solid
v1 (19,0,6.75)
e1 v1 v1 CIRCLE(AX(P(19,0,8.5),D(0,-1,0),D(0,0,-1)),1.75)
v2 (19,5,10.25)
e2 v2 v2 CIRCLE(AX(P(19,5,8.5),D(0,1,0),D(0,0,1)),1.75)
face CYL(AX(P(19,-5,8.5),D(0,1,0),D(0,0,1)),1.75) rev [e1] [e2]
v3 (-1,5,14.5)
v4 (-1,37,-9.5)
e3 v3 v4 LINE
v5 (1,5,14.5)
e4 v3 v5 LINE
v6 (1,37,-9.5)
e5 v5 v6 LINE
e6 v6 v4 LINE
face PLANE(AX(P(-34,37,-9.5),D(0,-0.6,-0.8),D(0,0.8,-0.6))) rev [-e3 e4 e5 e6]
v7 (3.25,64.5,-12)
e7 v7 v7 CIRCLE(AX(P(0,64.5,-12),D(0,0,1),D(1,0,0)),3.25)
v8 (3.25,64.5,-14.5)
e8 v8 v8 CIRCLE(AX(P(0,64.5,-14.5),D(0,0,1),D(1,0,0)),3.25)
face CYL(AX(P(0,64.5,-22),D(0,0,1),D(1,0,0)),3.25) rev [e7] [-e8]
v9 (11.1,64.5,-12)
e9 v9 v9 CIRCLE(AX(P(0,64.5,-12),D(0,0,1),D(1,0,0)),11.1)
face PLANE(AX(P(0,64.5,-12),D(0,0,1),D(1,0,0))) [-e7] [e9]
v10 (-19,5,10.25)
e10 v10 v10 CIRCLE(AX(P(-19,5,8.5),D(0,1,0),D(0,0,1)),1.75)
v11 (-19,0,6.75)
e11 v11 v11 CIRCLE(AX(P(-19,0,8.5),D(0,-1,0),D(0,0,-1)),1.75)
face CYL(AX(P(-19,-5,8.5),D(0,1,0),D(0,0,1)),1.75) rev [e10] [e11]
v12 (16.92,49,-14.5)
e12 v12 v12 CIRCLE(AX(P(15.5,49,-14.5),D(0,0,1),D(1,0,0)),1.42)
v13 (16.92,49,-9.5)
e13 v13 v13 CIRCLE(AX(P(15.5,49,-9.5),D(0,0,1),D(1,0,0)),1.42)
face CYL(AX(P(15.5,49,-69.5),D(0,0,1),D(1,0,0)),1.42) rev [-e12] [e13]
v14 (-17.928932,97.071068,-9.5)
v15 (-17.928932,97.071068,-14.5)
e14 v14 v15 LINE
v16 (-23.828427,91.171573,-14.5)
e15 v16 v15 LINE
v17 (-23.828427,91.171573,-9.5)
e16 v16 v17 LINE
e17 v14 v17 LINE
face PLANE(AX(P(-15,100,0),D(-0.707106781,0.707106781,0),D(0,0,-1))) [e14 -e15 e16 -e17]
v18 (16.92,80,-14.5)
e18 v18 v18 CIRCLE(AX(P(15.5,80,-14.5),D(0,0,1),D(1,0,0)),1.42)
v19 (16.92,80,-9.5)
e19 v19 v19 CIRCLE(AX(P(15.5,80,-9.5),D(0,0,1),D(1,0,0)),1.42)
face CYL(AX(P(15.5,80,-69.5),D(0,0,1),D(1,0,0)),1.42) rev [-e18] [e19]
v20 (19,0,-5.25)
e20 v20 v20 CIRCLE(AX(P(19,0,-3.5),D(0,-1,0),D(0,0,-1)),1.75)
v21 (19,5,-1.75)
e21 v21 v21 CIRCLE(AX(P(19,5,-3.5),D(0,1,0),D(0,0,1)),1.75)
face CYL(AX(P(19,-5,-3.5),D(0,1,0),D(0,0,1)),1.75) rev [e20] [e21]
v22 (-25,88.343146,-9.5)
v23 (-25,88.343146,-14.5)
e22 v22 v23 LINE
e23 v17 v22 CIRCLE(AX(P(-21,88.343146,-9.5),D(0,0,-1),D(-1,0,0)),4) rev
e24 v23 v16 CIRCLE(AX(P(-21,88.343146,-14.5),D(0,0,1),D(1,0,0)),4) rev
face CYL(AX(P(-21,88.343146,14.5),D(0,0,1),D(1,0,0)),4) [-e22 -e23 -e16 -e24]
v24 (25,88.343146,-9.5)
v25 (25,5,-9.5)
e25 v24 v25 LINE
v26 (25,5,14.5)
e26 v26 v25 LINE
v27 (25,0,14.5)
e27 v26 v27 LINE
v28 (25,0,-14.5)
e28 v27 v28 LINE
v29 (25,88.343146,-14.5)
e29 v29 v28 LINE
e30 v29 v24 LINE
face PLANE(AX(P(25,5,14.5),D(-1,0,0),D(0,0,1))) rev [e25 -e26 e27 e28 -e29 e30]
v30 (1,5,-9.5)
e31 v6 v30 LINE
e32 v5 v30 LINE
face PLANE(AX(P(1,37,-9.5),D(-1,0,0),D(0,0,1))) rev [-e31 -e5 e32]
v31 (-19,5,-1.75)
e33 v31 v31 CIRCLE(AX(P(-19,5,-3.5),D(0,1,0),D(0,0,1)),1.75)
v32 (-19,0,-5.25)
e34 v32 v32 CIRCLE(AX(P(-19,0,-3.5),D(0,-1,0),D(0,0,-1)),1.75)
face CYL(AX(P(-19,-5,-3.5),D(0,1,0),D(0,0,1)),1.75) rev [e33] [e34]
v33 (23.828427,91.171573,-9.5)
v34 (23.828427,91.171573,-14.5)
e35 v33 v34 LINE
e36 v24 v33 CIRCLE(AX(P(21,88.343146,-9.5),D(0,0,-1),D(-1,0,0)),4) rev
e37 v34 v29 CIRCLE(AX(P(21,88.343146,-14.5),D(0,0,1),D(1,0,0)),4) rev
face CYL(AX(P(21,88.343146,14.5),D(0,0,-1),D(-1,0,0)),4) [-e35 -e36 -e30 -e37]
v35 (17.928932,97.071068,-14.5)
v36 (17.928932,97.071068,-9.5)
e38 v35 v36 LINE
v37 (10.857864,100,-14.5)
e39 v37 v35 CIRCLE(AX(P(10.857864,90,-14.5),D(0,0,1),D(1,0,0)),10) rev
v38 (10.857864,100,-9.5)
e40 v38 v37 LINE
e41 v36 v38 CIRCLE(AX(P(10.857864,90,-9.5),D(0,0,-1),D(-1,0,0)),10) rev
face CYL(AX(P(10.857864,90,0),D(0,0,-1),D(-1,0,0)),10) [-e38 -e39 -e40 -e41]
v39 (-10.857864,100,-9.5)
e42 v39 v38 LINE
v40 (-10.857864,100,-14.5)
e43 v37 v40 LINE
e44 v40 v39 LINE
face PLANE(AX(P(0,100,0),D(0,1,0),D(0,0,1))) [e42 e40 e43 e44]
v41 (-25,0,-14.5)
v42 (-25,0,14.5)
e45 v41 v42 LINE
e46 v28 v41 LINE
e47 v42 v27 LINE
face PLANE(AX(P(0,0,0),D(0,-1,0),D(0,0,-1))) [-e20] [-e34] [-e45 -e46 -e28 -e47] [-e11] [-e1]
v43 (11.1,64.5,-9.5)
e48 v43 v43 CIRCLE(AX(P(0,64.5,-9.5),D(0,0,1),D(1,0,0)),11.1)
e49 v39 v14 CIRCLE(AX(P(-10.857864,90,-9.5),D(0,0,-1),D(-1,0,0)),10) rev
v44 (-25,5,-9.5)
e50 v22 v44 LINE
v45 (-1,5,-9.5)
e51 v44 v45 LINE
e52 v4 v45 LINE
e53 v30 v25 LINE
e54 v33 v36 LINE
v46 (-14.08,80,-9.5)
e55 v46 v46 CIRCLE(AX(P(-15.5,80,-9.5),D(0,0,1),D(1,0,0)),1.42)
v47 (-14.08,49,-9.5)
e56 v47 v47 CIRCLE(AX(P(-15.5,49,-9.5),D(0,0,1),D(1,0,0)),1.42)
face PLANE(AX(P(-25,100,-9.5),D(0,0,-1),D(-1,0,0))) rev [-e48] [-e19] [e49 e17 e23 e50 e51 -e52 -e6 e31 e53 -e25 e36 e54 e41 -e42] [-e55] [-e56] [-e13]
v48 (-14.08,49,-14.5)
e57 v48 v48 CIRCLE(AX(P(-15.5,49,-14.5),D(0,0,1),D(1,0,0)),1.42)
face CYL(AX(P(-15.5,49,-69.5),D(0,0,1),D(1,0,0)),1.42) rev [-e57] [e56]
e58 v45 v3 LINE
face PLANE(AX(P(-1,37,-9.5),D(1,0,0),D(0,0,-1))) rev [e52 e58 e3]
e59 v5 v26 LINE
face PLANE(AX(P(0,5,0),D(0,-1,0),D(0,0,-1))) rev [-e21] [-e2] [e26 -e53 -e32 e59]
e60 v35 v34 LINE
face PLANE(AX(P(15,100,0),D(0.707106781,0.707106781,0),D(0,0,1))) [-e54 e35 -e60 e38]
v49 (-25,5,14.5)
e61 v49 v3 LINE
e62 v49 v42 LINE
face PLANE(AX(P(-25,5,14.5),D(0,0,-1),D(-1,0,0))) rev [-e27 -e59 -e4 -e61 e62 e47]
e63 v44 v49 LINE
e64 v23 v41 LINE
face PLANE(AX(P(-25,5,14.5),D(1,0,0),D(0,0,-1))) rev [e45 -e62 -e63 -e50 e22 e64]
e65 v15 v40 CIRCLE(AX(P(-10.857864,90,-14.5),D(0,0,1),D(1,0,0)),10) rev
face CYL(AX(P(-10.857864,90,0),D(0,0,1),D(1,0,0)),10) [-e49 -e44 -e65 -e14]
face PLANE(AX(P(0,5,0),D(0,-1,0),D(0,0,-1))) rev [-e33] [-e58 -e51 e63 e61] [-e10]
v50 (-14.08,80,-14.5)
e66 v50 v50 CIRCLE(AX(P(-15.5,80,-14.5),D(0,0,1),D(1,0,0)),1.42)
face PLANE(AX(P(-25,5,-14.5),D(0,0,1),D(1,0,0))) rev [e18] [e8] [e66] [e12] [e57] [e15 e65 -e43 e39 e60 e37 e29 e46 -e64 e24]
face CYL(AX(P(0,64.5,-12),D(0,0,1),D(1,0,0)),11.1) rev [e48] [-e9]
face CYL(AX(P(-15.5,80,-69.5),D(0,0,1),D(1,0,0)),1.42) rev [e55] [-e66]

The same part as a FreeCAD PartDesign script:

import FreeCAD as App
import Part
import Sketcher

V = App.Vector


def edges_at(feature, points):
    """Names of the edges that pass closest to the given points."""
    edges = feature.Shape.Edges
    near = lambda p: min(range(len(edges)), key=lambda i: edges[i].distToShape(Part.Vertex(*p))[0])
    return sorted({f"Edge{near(p) + 1}" for p in points})


def add_polygon(sketch, points):
    """Adds a closed chain of lines whose ends are joined by coincident constraints."""
    first, n = sketch.GeometryCount, len(points)
    for a, b in zip(points, points[1:] + points[:1]):
        sketch.addGeometry(Part.LineSegment(App.Vector(*a, 0), App.Vector(*b, 0)), False)
    for i in range(n):
        sketch.addConstraint(Sketcher.Constraint("Coincident", first + i, 2, first + (i + 1) % n, 1))

doc = App.newDocument("Part")
params = doc.addObject("Spreadsheet::Sheet", "Params")
for row, (alias, value) in enumerate([
    ("sketch1_width", "50 mm"),
    ("sketch1_height", "29 mm"),
    ("pad1_length", "5 mm"),
    ("sketch2_width", "50 mm"),
    ("sketch2_height", "5 mm"),
    ("pad2_length", "95 mm"),
    ("sketch3_diameter", "2.84 mm"),
    ("pocket1_length", "60 mm"),
    ("sketch4_diameter", "22.2 mm"),
    ("pocket2_length", "2.5 mm"),
    ("sketch5_diameter", "6.5 mm"),
    ("pocket3_length", "10 mm"),
    ("sketch6_diameter", "3.5 mm"),
    ("pocket4_length", "10 mm"),
    ("sketch7_width", "2 mm"),
    ("sketch7_height", "24 mm"),
    ("pad3_length", "32 mm"),
    ("sketch8_width", "32 mm"),
    ("sketch8_height", "24 mm"),
    ("pocket5_length", "35 mm"),
    ("chamfer_size", "10 mm"),
    ("fillet_radius", "10 mm"),
    ("fillet2_radius", "4 mm"),
    ("fillet3_radius", "4 mm"),
], start=1):
    params.set(f"A{row}", alias)
    params.set(f"B{row}", "=" + value)
    params.setAlias(f"B{row}", alias)

body = doc.addObject("PartDesign::Body", "Body")

sketch1 = body.newObject("Sketcher::SketchObject", "Sketch")
sketch1.AttachmentSupport = (doc.getObject("XZ_Plane"), [""])
sketch1.MapMode = "FlatFace"
add_polygon(sketch1, [(-25, -14), (-25, 14), (25, 14), (25, -14)])
sketch1.addConstraint(Sketcher.Constraint("Vertical", 0))
sketch1.addConstraint(Sketcher.Constraint("Horizontal", 1))
sketch1.addConstraint(Sketcher.Constraint("Vertical", 2))
sketch1.addConstraint(Sketcher.Constraint("Horizontal", 3))
sketch1.addConstraint(Sketcher.Constraint("Symmetric", 0, 2, 2, 2, -1, 1))
sketch1.addConstraint(Sketcher.Constraint("DistanceX", 1, 1, 1, 2, 50.0))
sketch1.addConstraint(Sketcher.Constraint("DistanceY", 0, 1, 0, 2, 29.0))
sketch1.setExpression("Constraints[9]", "Params.sketch1_width")
sketch1.setExpression("Constraints[10]", "Params.sketch1_height")
pad1 = body.newObject("PartDesign::Pad", "Pad")
pad1.Profile = sketch1
pad1.setExpression("Length", "Params.pad1_length")
pad1.Reversed = True

sketch2 = body.newObject("Sketcher::SketchObject", "Sketch001")
sketch2.AttachmentSupport = (doc.getObject("XZ_Plane"), [""])
sketch2.MapMode = "FlatFace"
sketch2.AttachmentOffset = App.Placement(V(0, 0, -5), App.Rotation())
add_polygon(sketch2, [(-25, -14), (-25, -10), (25, -10), (25, -14)])
sketch2.addConstraint(Sketcher.Constraint("Vertical", 0))
sketch2.addConstraint(Sketcher.Constraint("Horizontal", 1))
sketch2.addConstraint(Sketcher.Constraint("Vertical", 2))
sketch2.addConstraint(Sketcher.Constraint("Horizontal", 3))
sketch2.addConstraint(Sketcher.Constraint("DistanceX", 1, 1, 1, 2, 50.0))
sketch2.addConstraint(Sketcher.Constraint("DistanceY", 0, 1, 0, 2, 5.0))
sketch2.addConstraint(Sketcher.Constraint("DistanceX", 0, 2, -1, 1, 25.0))
sketch2.addConstraint(Sketcher.Constraint("DistanceY", 0, 2, -1, 1, 9.5))
sketch2.setExpression("Constraints[8]", "Params.sketch2_width")
sketch2.setExpression("Constraints[9]", "Params.sketch2_height")
pad2 = body.newObject("PartDesign::Pad", "Pad001")
pad2.Profile = sketch2
pad2.setExpression("Length", "Params.pad2_length")
pad2.Reversed = True

sketch3 = body.newObject("Sketcher::SketchObject", "Sketch002")
sketch3.AttachmentSupport = (doc.getObject("XY_Plane"), [""])
sketch3.MapMode = "FlatFace"
sketch3.AttachmentOffset = App.Placement(V(0, 0, -9.5), App.Rotation())
sketch3.addGeometry(Part.Circle(V(-15.5, 49, 0), V(0, 0, 1), 1.4), False)
sketch3.addGeometry(Part.Circle(V(15.5, 49, 0), V(0, 0, 1), 1.4), False)
sketch3.addGeometry(Part.Circle(V(15.5, 80, 0), V(0, 0, 1), 1.4), False)
sketch3.addGeometry(Part.Circle(V(-15.5, 80, 0), V(0, 0, 1), 1.4), False)
sketch3.addConstraint(Sketcher.Constraint("Equal", 0, 1))
sketch3.addConstraint(Sketcher.Constraint("Equal", 1, 2))
sketch3.addConstraint(Sketcher.Constraint("Equal", 2, 3))
sketch3.addConstraint(Sketcher.Constraint("Symmetric", 0, 3, 1, 3, -2))
sketch3.addConstraint(Sketcher.Constraint("Symmetric", 2, 3, 3, 3, -2))
sketch3.addConstraint(Sketcher.Constraint("Vertical", 1, 3, 2, 3))
sketch3.addConstraint(Sketcher.Constraint("Diameter", 0, 2.84))
sketch3.addConstraint(Sketcher.Constraint("DistanceY", -1, 1, 0, 3, 49.0))
sketch3.addConstraint(Sketcher.Constraint("DistanceY", -1, 1, 2, 3, 80.0))
sketch3.addConstraint(Sketcher.Constraint("DistanceX", 0, 3, 1, 3, 31.0))
sketch3.setExpression("Constraints[6]", "Params.sketch3_diameter")
pocket1 = body.newObject("PartDesign::Pocket", "Pocket")
pocket1.Profile = sketch3
pocket1.setExpression("Length", "Params.pocket1_length")

sketch4 = body.newObject("Sketcher::SketchObject", "Sketch003")
sketch4.AttachmentSupport = (doc.getObject("XY_Plane"), [""])
sketch4.MapMode = "FlatFace"
sketch4.AttachmentOffset = App.Placement(V(0, 0, -9.5), App.Rotation())
sketch4.addGeometry(Part.Circle(V(0, 64, 0), V(0, 0, 1), 11), False)
sketch4.addConstraint(Sketcher.Constraint("PointOnObject", 0, 3, -2))
sketch4.addConstraint(Sketcher.Constraint("Diameter", 0, 22.2))
sketch4.addConstraint(Sketcher.Constraint("DistanceY", -1, 1, 0, 3, 64.5))
sketch4.setExpression("Constraints[1]", "Params.sketch4_diameter")
pocket2 = body.newObject("PartDesign::Pocket", "Pocket001")
pocket2.Profile = sketch4
pocket2.setExpression("Length", "Params.pocket2_length")

sketch5 = body.newObject("Sketcher::SketchObject", "Sketch004")
sketch5.AttachmentSupport = (doc.getObject("XY_Plane"), [""])
sketch5.MapMode = "FlatFace"
sketch5.AttachmentOffset = App.Placement(V(0, 0, -12), App.Rotation())
sketch5.addGeometry(Part.Circle(V(0, 64.5, 0), V(0, 0, 1), 3.2), False)
sketch5.addConstraint(Sketcher.Constraint("PointOnObject", 0, 3, -2))
sketch5.addConstraint(Sketcher.Constraint("Diameter", 0, 6.5))
sketch5.addConstraint(Sketcher.Constraint("DistanceY", -1, 1, 0, 3, 64.5))
sketch5.setExpression("Constraints[1]", "Params.sketch5_diameter")
pocket3 = body.newObject("PartDesign::Pocket", "Pocket002")
pocket3.Profile = sketch5
pocket3.setExpression("Length", "Params.pocket3_length")

sketch6 = body.newObject("Sketcher::SketchObject", "Sketch005")
sketch6.AttachmentSupport = (doc.getObject("XZ_Plane"), [""])
sketch6.MapMode = "FlatFace"
sketch6.AttachmentOffset = App.Placement(V(0, 0, -5), App.Rotation())
sketch6.addGeometry(Part.Circle(V(-19, -3.5, 0), V(0, 0, 1), 1.8), False)
sketch6.addGeometry(Part.Circle(V(-19, 8.5, 0), V(0, 0, 1), 1.8), False)
sketch6.addGeometry(Part.Circle(V(19, 8.5, 0), V(0, 0, 1), 1.8), False)
sketch6.addGeometry(Part.Circle(V(19, -3.5, 0), V(0, 0, 1), 1.8), False)
sketch6.addConstraint(Sketcher.Constraint("Equal", 0, 1))
sketch6.addConstraint(Sketcher.Constraint("Equal", 1, 2))
sketch6.addConstraint(Sketcher.Constraint("Equal", 2, 3))
sketch6.addConstraint(Sketcher.Constraint("Symmetric", 1, 3, 2, 3, -2))
sketch6.addConstraint(Sketcher.Constraint("Symmetric", 0, 3, 3, 3, -2))
sketch6.addConstraint(Sketcher.Constraint("Vertical", 0, 3, 1, 3))
sketch6.addConstraint(Sketcher.Constraint("Diameter", 0, 3.5))
sketch6.addConstraint(Sketcher.Constraint("DistanceX", 0, 3, -1, 1, 19.0))
sketch6.addConstraint(Sketcher.Constraint("DistanceY", 0, 3, 1, 3, 12.0))
sketch6.addConstraint(Sketcher.Constraint("DistanceY", 0, 3, -1, 1, 3.5))
sketch6.setExpression("Constraints[6]", "Params.sketch6_diameter")
pocket4 = body.newObject("PartDesign::Pocket", "Pocket003")
pocket4.Profile = sketch6
pocket4.setExpression("Length", "Params.pocket4_length")
pocket4.Reversed = True

sketch7 = body.newObject("Sketcher::SketchObject", "Sketch006")
sketch7.AttachmentSupport = (doc.getObject("XZ_Plane"), [""])
sketch7.MapMode = "FlatFace"
sketch7.AttachmentOffset = App.Placement(V(0, 0, -5), App.Rotation())
add_polygon(sketch7, [(-1, -9.5), (-1, 14.5), (1, 14.5), (1, -9.5)])
sketch7.addConstraint(Sketcher.Constraint("Vertical", 0))
sketch7.addConstraint(Sketcher.Constraint("Horizontal", 1))
sketch7.addConstraint(Sketcher.Constraint("Vertical", 2))
sketch7.addConstraint(Sketcher.Constraint("Horizontal", 3))
sketch7.addConstraint(Sketcher.Constraint("DistanceX", 1, 1, 1, 2, 2.0))
sketch7.addConstraint(Sketcher.Constraint("DistanceY", 0, 1, 0, 2, 24.0))
sketch7.addConstraint(Sketcher.Constraint("DistanceX", 0, 2, -1, 1, 1.0))
sketch7.addConstraint(Sketcher.Constraint("DistanceY", -1, 1, 0, 2, 14.5))
sketch7.setExpression("Constraints[8]", "Params.sketch7_width")
sketch7.setExpression("Constraints[9]", "Params.sketch7_height")
pad3 = body.newObject("PartDesign::Pad", "Pad002")
pad3.Profile = sketch7
pad3.setExpression("Length", "Params.pad3_length")
pad3.Reversed = True

sketch8 = body.newObject("Sketcher::SketchObject", "Sketch007")
sketch8.AttachmentSupport = (doc.getObject("YZ_Plane"), [""])
sketch8.MapMode = "FlatFace"
sketch8.AttachmentOffset = App.Placement(V(0, 0, 1), App.Rotation())
add_polygon(sketch8, [(5, 14), (37, -10), (37, 14)])
sketch8.addConstraint(Sketcher.Constraint("Vertical", 1))
sketch8.addConstraint(Sketcher.Constraint("Horizontal", 2))
sketch8.addConstraint(Sketcher.Constraint("DistanceX", 2, 2, 2, 1, 32.0))
sketch8.addConstraint(Sketcher.Constraint("DistanceY", 1, 1, 1, 2, 24.0))
sketch8.addConstraint(Sketcher.Constraint("DistanceX", -1, 1, 0, 2, 37.0))
sketch8.addConstraint(Sketcher.Constraint("DistanceY", 0, 2, -1, 1, 9.5))
sketch8.setExpression("Constraints[5]", "Params.sketch8_width")
sketch8.setExpression("Constraints[6]", "Params.sketch8_height")
pocket5 = body.newObject("PartDesign::Pocket", "Pocket004")
pocket5.Profile = sketch8
pocket5.setExpression("Length", "Params.pocket5_length")
doc.recompute()

chamfer = body.newObject("PartDesign::Chamfer", "Chamfer")
chamfer.Base = (pocket5, edges_at(pocket5, [(-25, 100, -12), (25, 100, -12)]))
chamfer.setExpression("Size", "Params.chamfer_size")
doc.recompute()

fillet = body.newObject("PartDesign::Fillet", "Fillet")
fillet.Base = (chamfer, edges_at(chamfer, [(15, 100, -12), (-15, 100, -12)]))
fillet.setExpression("Radius", "Params.fillet_radius")
doc.recompute()

fillet2 = body.newObject("PartDesign::Fillet", "Fillet001")
fillet2.Base = (fillet, edges_at(fillet, [(25, 90, -12)]))
fillet2.setExpression("Radius", "Params.fillet2_radius")
doc.recompute()

fillet3 = body.newObject("PartDesign::Fillet", "Fillet002")
fillet3.Base = (fillet2, edges_at(fillet2, [(-25, 90, -12)]))
fillet3.setExpression("Radius", "Params.fillet3_radius")

doc.recompute()
